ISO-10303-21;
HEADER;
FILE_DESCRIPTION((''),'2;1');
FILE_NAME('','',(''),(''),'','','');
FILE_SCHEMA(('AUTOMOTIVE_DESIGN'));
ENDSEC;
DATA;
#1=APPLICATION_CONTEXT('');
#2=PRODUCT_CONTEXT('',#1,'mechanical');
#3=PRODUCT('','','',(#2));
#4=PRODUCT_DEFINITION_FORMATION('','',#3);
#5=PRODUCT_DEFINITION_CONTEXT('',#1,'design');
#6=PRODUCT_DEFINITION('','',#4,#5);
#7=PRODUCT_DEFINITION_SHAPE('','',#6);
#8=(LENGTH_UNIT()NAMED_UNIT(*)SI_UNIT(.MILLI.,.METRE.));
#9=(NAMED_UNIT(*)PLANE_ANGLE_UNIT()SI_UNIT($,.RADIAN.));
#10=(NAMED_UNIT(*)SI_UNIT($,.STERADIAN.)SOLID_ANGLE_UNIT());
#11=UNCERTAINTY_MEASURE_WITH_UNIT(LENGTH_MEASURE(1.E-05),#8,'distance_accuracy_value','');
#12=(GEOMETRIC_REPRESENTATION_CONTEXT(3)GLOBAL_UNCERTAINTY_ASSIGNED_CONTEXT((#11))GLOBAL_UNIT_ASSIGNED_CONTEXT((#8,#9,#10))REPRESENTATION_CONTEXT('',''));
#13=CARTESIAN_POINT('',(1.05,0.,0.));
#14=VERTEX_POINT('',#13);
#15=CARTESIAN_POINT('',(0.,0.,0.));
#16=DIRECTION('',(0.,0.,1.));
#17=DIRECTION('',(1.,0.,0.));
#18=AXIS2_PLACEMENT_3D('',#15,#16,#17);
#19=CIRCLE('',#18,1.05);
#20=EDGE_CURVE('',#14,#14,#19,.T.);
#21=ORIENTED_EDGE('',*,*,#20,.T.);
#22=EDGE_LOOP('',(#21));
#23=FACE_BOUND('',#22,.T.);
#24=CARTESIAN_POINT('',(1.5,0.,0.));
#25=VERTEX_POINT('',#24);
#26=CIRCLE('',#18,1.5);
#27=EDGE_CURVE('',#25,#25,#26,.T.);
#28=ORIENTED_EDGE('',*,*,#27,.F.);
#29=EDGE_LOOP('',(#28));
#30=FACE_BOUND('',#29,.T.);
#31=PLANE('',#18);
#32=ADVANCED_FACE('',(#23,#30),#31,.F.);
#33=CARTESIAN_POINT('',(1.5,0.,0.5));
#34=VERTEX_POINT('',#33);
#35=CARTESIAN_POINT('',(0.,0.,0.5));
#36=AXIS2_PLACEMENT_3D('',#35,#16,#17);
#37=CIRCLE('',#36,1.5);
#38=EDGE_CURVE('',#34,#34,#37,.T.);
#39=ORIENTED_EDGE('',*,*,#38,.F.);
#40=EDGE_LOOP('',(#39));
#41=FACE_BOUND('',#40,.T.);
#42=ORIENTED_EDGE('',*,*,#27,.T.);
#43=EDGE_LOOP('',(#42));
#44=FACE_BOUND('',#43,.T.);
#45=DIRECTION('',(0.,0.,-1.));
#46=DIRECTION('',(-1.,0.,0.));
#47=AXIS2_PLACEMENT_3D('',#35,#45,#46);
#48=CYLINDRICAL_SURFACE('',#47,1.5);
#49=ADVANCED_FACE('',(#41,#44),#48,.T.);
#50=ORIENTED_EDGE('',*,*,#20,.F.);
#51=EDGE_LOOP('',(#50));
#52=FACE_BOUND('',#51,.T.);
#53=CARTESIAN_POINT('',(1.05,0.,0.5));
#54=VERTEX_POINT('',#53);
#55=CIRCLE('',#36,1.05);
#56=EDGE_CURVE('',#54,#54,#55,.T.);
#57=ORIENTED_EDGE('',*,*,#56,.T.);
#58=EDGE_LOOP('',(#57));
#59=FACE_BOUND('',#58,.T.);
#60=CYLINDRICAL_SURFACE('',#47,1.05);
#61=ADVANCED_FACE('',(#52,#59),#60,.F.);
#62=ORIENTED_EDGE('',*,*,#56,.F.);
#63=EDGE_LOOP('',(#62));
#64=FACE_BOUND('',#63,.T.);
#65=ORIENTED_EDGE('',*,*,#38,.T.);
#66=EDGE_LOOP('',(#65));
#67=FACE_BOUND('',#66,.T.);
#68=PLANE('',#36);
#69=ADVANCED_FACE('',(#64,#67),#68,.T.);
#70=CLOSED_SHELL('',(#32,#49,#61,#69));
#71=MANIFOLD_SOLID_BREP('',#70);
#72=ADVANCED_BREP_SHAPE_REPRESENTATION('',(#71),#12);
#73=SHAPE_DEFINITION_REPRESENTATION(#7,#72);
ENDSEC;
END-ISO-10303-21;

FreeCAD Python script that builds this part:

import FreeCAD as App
import Part
import Sketcher
Q = App.Units.Quantity

doc = App.newDocument("Part")
params = doc.addObject("Spreadsheet::Sheet", "Params")
for row, (alias, value) in enumerate([
    ("sketch1_diameter", "3 mm"),
    ("sketch1_diameter2", "2.1 mm"),
    ("pad1_length", "0.5 mm"),
], start=1):
    params.set(f"A{row}", alias)
    params.set(f"B{row}", "=" + value)
    params.setAlias(f"B{row}", alias)

body = doc.addObject("PartDesign::Body", "Body")

# Sketch on XY plane
sketch1 = body.newObject("Sketcher::SketchObject", "Sketch")
sketch1.AttachmentSupport = (doc.getObject("XY_Plane"), [""])
sketch1.MapMode = "FlatFace"
sketch1.addGeometry(Part.Circle(App.Vector(0, 0, 0), App.Vector(0, 0, 1), 1.5), False)
sketch1.addGeometry(Part.Circle(App.Vector(0, 0, 0), App.Vector(0, 0, 1), 1.1), False)
sketch1.addConstraint(Sketcher.Constraint("Coincident", 0, 3, -1, 1))
sketch1.addConstraint(Sketcher.Constraint("Coincident", 1, 3, -1, 1))
sketch1.addConstraint(Sketcher.Constraint("Diameter", 0, Q("3 mm")))
sketch1.addConstraint(Sketcher.Constraint("Diameter", 1, Q("2.1 mm")))
sketch1.setExpression("Constraints[2]", "Params.sketch1_diameter")
sketch1.setExpression("Constraints[3]", "Params.sketch1_diameter2")
pad1 = body.newObject("PartDesign::Pad", "Pad")
pad1.Profile = sketch1
pad1.setExpression("Length", "Params.pad1_length")

doc.recompute()
